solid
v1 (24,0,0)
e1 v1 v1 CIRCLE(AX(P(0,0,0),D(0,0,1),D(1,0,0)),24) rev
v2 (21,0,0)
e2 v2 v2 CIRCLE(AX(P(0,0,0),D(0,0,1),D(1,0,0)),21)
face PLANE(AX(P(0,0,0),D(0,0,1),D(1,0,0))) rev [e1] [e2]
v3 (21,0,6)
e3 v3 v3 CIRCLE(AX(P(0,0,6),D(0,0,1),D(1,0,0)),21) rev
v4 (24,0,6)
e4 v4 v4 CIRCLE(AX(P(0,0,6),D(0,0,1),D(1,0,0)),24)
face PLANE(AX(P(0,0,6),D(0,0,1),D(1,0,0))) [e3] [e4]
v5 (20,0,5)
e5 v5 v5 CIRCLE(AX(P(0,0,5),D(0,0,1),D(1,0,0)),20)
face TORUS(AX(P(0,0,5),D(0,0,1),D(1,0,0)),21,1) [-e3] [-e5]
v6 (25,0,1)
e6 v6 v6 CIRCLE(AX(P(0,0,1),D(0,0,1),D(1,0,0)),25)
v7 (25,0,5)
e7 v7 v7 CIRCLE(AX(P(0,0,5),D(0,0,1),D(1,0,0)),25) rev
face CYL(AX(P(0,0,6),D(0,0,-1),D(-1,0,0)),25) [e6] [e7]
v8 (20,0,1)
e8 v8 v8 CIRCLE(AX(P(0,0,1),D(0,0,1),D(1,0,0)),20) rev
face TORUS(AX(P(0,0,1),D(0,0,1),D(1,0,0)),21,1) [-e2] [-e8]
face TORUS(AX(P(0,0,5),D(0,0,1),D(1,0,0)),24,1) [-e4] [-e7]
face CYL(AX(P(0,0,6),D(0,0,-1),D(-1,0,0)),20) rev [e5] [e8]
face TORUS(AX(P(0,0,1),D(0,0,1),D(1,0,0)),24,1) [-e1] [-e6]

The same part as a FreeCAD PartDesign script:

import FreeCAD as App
import Part
import Sketcher


def edges_at(feature, points):
    """Names of the edges that pass closest to the given points."""
    edges = feature.Shape.Edges
    near = lambda p: min(range(len(edges)), key=lambda i: edges[i].distToShape(Part.Vertex(*p))[0])
    return sorted({f"Edge{near(p) + 1}" for p in points})

doc = App.newDocument("Part")
body = doc.addObject("PartDesign::Body", "Body")

sketch1 = body.newObject("Sketcher::SketchObject", "Sketch")
sketch1.AttachmentSupport = (doc.getObject("XY_Plane"), [""])
sketch1.MapMode = "FlatFace"
sketch1.addGeometry(Part.Circle(App.Vector(0, 0, 0), App.Vector(0, 0, 1), 25), False)
sketch1.addGeometry(Part.Circle(App.Vector(0, 0, 0), App.Vector(0, 0, 1), 20), False)
sketch1.addConstraint(Sketcher.Constraint("Coincident", 0, 3, -1, 1))
sketch1.addConstraint(Sketcher.Constraint("Coincident", 1, 3, -1, 1))
sketch1.addConstraint(Sketcher.Constraint("Diameter", 0, 50.0))
sketch1.addConstraint(Sketcher.Constraint("Diameter", 1, 40.0))
pad1 = body.newObject("PartDesign::Pad", "Pad")
pad1.Profile = sketch1
pad1.Length = 6
doc.recompute()

fillet = body.newObject("PartDesign::Fillet", "Fillet")
fillet.Base = (pad1, edges_at(pad1, [
    (-25, 0, 0),
    (-25, 0, 6),
    (-20, 0, 0),
    (-20, 0, 6),
]))
fillet.Radius = 1

doc.recompute()
